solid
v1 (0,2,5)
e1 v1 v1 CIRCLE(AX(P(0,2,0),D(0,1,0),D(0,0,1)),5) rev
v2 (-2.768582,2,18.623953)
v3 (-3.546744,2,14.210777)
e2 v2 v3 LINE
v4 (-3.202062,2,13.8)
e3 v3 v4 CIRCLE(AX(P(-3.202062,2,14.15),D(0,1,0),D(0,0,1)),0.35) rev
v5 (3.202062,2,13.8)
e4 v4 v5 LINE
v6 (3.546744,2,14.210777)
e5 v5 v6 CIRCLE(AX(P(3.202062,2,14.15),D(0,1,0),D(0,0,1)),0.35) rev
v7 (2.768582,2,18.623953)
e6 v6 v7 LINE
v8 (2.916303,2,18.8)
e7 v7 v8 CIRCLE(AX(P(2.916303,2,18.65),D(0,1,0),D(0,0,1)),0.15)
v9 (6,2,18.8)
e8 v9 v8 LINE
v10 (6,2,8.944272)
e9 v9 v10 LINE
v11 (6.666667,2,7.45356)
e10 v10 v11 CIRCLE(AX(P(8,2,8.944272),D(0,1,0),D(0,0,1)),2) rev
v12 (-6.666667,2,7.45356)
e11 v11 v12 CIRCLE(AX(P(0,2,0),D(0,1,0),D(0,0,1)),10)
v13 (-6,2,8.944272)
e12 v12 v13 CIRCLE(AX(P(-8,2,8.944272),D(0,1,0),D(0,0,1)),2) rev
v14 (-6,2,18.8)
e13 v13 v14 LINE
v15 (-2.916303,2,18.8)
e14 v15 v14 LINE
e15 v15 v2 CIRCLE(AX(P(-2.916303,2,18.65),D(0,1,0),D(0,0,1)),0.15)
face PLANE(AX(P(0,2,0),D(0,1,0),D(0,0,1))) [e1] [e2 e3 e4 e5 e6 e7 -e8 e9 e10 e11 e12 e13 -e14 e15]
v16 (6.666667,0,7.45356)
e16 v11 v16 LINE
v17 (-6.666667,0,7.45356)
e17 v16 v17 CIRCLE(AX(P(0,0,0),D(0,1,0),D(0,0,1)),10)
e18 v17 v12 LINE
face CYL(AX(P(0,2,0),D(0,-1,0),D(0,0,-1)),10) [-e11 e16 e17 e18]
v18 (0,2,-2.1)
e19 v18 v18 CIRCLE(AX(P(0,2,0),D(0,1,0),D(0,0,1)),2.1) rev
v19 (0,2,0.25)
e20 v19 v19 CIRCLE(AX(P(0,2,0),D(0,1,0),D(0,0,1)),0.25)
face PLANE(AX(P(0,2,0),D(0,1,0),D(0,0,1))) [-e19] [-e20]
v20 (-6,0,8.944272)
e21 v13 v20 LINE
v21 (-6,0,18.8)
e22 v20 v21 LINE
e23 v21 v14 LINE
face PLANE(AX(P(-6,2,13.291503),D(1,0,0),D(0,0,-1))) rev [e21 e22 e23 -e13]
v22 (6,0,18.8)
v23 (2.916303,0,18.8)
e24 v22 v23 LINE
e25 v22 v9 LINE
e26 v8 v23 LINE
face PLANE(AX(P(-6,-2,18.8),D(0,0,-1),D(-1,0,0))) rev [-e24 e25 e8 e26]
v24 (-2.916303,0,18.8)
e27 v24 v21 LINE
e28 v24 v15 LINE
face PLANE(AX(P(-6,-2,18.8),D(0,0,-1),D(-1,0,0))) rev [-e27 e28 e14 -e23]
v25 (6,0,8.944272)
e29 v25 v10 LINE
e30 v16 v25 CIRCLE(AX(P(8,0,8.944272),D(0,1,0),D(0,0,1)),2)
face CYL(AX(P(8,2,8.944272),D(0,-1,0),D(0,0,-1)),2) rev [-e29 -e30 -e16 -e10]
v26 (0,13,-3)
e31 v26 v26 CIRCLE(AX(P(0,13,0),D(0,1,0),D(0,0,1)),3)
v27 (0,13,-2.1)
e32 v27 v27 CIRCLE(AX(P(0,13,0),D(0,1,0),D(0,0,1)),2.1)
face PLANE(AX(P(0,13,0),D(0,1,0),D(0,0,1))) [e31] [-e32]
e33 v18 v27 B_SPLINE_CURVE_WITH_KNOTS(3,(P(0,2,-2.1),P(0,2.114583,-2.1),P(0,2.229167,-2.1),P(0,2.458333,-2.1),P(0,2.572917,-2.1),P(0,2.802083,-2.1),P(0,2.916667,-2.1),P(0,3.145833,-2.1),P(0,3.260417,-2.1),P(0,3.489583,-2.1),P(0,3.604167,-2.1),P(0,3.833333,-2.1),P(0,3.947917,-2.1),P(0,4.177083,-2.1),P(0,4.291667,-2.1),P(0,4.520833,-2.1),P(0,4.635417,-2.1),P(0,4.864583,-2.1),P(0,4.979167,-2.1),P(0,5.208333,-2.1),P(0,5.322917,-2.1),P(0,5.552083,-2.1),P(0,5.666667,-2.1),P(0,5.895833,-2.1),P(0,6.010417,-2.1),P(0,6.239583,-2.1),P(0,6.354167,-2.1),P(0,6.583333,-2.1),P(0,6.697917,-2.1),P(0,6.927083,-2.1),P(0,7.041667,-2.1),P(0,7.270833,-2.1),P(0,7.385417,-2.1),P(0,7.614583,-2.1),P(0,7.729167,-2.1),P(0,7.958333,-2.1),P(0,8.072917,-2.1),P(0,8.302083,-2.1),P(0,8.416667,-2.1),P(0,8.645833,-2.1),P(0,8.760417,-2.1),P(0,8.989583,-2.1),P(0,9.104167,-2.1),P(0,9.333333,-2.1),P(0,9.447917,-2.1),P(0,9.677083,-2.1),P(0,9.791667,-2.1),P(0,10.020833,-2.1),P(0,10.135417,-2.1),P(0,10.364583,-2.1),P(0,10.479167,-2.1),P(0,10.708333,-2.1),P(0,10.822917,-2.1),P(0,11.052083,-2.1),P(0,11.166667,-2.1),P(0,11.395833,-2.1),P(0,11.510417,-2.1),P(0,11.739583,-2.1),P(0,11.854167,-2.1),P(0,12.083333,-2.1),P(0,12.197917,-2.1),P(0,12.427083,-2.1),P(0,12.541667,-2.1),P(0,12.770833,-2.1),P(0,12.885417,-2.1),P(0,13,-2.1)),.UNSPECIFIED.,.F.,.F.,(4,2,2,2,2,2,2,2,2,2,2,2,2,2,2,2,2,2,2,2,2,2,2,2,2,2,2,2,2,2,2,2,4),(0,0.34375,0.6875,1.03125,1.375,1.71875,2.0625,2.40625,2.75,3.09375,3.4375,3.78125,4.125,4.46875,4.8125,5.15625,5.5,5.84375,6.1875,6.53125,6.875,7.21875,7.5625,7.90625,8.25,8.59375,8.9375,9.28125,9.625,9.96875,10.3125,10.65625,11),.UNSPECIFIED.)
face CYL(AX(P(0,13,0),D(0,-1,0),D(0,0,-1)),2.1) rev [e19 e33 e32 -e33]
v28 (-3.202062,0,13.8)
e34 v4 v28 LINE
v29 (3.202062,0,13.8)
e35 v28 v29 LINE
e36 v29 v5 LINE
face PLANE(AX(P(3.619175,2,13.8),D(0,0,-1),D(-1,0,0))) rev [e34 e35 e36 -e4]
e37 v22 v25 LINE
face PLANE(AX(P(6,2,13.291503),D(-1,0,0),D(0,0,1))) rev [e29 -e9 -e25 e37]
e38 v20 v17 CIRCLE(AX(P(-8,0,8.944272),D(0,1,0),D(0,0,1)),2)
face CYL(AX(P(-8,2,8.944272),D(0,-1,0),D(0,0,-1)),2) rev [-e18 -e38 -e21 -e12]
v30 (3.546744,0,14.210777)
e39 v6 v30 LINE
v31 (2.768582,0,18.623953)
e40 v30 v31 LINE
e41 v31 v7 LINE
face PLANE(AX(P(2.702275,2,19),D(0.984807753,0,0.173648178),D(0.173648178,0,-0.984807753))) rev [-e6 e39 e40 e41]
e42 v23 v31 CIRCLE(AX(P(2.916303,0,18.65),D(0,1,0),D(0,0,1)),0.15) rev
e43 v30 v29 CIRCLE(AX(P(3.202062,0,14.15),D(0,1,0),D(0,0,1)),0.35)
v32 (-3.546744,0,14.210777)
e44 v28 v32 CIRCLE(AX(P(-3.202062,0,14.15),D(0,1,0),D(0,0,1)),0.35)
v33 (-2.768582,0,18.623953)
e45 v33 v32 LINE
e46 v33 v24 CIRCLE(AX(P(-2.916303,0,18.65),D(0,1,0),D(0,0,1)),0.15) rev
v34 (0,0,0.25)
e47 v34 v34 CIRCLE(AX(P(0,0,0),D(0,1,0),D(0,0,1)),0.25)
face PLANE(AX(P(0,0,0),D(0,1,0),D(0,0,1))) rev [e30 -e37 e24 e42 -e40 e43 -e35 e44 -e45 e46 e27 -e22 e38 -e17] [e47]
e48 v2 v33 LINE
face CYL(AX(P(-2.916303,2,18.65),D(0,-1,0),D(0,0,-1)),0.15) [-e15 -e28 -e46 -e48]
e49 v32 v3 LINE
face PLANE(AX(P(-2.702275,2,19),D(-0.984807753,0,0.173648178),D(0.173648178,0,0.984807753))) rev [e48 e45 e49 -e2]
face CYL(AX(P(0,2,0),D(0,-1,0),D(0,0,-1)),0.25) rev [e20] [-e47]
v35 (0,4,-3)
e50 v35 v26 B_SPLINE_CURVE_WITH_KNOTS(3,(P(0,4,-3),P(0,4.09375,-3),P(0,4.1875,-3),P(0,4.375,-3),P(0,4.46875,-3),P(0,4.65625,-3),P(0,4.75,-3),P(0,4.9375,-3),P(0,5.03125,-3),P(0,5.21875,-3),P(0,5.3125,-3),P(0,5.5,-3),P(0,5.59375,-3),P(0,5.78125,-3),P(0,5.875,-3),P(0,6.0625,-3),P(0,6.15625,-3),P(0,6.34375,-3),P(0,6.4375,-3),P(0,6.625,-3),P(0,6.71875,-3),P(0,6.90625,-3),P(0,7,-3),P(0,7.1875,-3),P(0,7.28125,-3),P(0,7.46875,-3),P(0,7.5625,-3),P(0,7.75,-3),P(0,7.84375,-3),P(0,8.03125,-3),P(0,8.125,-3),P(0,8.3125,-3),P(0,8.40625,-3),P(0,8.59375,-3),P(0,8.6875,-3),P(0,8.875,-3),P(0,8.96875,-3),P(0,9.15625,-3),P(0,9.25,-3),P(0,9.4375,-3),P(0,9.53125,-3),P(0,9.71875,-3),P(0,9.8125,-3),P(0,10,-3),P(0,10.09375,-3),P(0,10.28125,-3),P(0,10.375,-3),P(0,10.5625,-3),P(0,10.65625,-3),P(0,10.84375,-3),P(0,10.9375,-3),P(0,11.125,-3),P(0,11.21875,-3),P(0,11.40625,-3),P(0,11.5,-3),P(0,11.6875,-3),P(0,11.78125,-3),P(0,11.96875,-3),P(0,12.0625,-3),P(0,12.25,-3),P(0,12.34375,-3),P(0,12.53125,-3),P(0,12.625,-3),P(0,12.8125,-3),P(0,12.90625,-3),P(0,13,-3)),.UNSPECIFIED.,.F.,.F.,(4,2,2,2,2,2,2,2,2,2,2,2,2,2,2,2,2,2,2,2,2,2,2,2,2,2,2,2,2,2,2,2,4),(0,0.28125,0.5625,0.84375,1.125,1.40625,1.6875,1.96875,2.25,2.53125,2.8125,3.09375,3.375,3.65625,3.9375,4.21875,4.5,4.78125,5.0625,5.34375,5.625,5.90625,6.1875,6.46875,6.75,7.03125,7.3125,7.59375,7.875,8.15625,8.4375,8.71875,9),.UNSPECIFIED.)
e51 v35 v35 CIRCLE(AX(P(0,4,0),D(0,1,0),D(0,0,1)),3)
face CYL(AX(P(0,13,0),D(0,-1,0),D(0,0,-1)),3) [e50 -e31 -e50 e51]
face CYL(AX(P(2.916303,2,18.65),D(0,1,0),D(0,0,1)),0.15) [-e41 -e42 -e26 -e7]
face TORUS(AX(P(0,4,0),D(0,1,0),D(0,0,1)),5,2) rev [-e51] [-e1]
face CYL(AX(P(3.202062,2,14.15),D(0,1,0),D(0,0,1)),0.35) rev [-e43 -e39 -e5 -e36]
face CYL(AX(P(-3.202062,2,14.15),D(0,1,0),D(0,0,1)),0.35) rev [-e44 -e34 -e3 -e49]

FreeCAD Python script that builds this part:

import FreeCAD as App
import Part
import Sketcher
from FreeCAD import Vector
Q = App.Units.Quantity


def edges_at(feature, points):
    """Names of the edges that pass closest to the given points."""
    edges = feature.Shape.Edges
    near = lambda p: min(range(len(edges)), key=lambda i: edges[i].distToShape(Part.Vertex(*p))[0])
    return sorted({f"Edge{near(p) + 1}" for p in points})


def add_polygon(sketch, points):
    """Adds a closed chain of lines whose ends are joined by coincident constraints."""
    first, n = sketch.GeometryCount, len(points)
    for a, b in zip(points, points[1:] + points[:1]):
        sketch.addGeometry(Part.LineSegment(App.Vector(*a, 0), App.Vector(*b, 0)), False)
    for i in range(n):
        sketch.addConstraint(Sketcher.Constraint("Coincident", first + i, 2, first + (i + 1) % n, 1))

doc = App.newDocument("Part")
body = doc.addObject("PartDesign::Body", "Body")

sketch1 = doc.addObject("Sketcher::SketchObject", "Sketch")
body.addObject(sketch1)
sketch1.AttachmentSupport = (doc.XZ_Plane, [""])
sketch1.MapMode = "FlatFace"
add_polygon(sketch1, [(-6, -6), (-6, 19), (-2.702275, 19), (-3.619175, 13.8), (3.619175, 13.8), (2.702275, 19), (6, 19), (6, -6)])
sketch1.addGeometry(Part.Circle(Vector(0, 0, 0), Vector(0, 0, 1), 0.25), False)
sketch1.addConstraint([
    Sketcher.Constraint("Vertical", 0),
    Sketcher.Constraint("Horizontal", 1),
    Sketcher.Constraint("Horizontal", 3),
    Sketcher.Constraint("Horizontal", 5),
    Sketcher.Constraint("Vertical", 6),
    Sketcher.Constraint("Horizontal", 7),
    Sketcher.Constraint("Coincident", 8, 3, -1, 1),
    Sketcher.Constraint("Symmetric", 1, 2, 4, 2, -2),
    Sketcher.Constraint("Equal", 1, 5),
    Sketcher.Constraint("Equal", 2, 4),
    Sketcher.Constraint("Diameter", 8, 0.5),
    Sketcher.Constraint("DistanceX", 7, 2, 7, 1, 12.0),
    Sketcher.Constraint("DistanceY", 0, 1, 0, 2, 25.0),
    Sketcher.Constraint("Angle", 2, Q("-100 deg")),
    Sketcher.Constraint("DistanceY", -1, 1, 0, 2, 19.0),
    Sketcher.Constraint("DistanceY", -1, 1, 2, 2, 13.8),
    Sketcher.Constraint("DistanceX", 3, 1, 3, 2, 7.238351),
])
pad1 = doc.addObject("PartDesign::Pad", "Pad")
body.addObject(pad1)
pad1.Profile = sketch1
pad1.Length = 2
pad1.Reversed = True

sketch2 = doc.addObject("Sketcher::SketchObject", "Sketch001")
body.addObject(sketch2)
sketch2.AttachmentSupport = (doc.XZ_Plane, [""])
sketch2.MapMode = "FlatFace"
sketch2.addGeometry([
    Part.Circle(Vector(0, 0, 0), Vector(0, 0, 1), 10),
    Part.Circle(Vector(0, 0, 0), Vector(0, 0, 1), 3),
], False)
sketch2.addConstraint([
    Sketcher.Constraint("Coincident", 0, 3, -1, 1),
    Sketcher.Constraint("Coincident", 1, 3, -1, 1),
    Sketcher.Constraint("Diameter", 0, 20.0),
    Sketcher.Constraint("Diameter", 1, 6.0),
])
pad2 = doc.addObject("PartDesign::Pad", "Pad001")
body.addObject(pad2)
pad2.Profile = sketch2
pad2.Length = 2
pad2.Reversed = True

sketch3 = doc.addObject("Sketcher::SketchObject", "Sketch002")
body.addObject(sketch3)
sketch3.AttachmentSupport = (doc.XZ_Plane, [""])
sketch3.MapMode = "FlatFace"
sketch3.AttachmentOffset = App.Placement(Vector(0, 0, -2), App.Rotation())
add_polygon(sketch3, [(-6, 18.8), (-6, 19), (6, 19), (6, 18.8)])
sketch3.addConstraint([
    Sketcher.Constraint("Vertical", 0),
    Sketcher.Constraint("Horizontal", 1),
    Sketcher.Constraint("Vertical", 2),
    Sketcher.Constraint("Horizontal", 3),
    Sketcher.Constraint("DistanceX", 1, 1, 1, 2, 12.0),
    Sketcher.Constraint("DistanceY", 0, 1, 0, 2, 0.2),
    Sketcher.Constraint("DistanceX", 0, 2, -1, 1, 6.0),
    Sketcher.Constraint("DistanceY", -1, 1, 0, 2, 19.0),
])
pocket1 = doc.addObject("PartDesign::Pocket", "Pocket")
body.addObject(pocket1)
pocket1.Profile = sketch3
pocket1.Length = 4
pocket1.Reversed = True
doc.recompute()

fillet = doc.addObject("PartDesign::Fillet", "Fillet")
body.addObject(fillet)
fillet.Base = (pocket1, edges_at(pocket1, [(3.619, 1, 13.8), (-3.619, 1, 13.8)]))
fillet.Radius = 0.35
doc.recompute()

fillet2 = doc.addObject("PartDesign::Fillet", "Fillet001")
body.addObject(fillet2)
fillet2.Base = (fillet, edges_at(fillet, [(2.738, 1, 18.8), (-2.738, 1, 18.8)]))
fillet2.Radius = 0.15

sketch4 = doc.addObject("Sketcher::SketchObject", "Sketch003")
body.addObject(sketch4)
sketch4.AttachmentSupport = (doc.XZ_Plane, [""])
sketch4.MapMode = "FlatFace"
sketch4.addGeometry([
    Part.Circle(Vector(0, 0, 0), Vector(0, 0, 1), 3),
    Part.Circle(Vector(0, 0, 0), Vector(0, 0, 1), 2.1),
], False)
sketch4.addConstraint([
    Sketcher.Constraint("Coincident", 0, 3, -1, 1),
    Sketcher.Constraint("Coincident", 1, 3, -1, 1),
    Sketcher.Constraint("Diameter", 0, 6.0),
    Sketcher.Constraint("Diameter", 1, 4.2),
])
pad3 = doc.addObject("PartDesign::Pad", "Pad002")
body.addObject(pad3)
pad3.Profile = sketch4
pad3.Length = 13
pad3.Reversed = True
doc.recompute()

fillet3 = doc.addObject("PartDesign::Fillet", "Fillet002")
body.addObject(fillet3)
fillet3.Base = (pad3, edges_at(pad3, [(0, 2, 3)]))
fillet3.Radius = 2
doc.recompute()

fillet4 = doc.addObject("PartDesign::Fillet", "Fillet003")
body.addObject(fillet4)
fillet4.Base = (fillet3, edges_at(fillet3, [(6, 1, 8), (-6, 1, 8)]))
fillet4.Radius = 2

doc.recompute()
